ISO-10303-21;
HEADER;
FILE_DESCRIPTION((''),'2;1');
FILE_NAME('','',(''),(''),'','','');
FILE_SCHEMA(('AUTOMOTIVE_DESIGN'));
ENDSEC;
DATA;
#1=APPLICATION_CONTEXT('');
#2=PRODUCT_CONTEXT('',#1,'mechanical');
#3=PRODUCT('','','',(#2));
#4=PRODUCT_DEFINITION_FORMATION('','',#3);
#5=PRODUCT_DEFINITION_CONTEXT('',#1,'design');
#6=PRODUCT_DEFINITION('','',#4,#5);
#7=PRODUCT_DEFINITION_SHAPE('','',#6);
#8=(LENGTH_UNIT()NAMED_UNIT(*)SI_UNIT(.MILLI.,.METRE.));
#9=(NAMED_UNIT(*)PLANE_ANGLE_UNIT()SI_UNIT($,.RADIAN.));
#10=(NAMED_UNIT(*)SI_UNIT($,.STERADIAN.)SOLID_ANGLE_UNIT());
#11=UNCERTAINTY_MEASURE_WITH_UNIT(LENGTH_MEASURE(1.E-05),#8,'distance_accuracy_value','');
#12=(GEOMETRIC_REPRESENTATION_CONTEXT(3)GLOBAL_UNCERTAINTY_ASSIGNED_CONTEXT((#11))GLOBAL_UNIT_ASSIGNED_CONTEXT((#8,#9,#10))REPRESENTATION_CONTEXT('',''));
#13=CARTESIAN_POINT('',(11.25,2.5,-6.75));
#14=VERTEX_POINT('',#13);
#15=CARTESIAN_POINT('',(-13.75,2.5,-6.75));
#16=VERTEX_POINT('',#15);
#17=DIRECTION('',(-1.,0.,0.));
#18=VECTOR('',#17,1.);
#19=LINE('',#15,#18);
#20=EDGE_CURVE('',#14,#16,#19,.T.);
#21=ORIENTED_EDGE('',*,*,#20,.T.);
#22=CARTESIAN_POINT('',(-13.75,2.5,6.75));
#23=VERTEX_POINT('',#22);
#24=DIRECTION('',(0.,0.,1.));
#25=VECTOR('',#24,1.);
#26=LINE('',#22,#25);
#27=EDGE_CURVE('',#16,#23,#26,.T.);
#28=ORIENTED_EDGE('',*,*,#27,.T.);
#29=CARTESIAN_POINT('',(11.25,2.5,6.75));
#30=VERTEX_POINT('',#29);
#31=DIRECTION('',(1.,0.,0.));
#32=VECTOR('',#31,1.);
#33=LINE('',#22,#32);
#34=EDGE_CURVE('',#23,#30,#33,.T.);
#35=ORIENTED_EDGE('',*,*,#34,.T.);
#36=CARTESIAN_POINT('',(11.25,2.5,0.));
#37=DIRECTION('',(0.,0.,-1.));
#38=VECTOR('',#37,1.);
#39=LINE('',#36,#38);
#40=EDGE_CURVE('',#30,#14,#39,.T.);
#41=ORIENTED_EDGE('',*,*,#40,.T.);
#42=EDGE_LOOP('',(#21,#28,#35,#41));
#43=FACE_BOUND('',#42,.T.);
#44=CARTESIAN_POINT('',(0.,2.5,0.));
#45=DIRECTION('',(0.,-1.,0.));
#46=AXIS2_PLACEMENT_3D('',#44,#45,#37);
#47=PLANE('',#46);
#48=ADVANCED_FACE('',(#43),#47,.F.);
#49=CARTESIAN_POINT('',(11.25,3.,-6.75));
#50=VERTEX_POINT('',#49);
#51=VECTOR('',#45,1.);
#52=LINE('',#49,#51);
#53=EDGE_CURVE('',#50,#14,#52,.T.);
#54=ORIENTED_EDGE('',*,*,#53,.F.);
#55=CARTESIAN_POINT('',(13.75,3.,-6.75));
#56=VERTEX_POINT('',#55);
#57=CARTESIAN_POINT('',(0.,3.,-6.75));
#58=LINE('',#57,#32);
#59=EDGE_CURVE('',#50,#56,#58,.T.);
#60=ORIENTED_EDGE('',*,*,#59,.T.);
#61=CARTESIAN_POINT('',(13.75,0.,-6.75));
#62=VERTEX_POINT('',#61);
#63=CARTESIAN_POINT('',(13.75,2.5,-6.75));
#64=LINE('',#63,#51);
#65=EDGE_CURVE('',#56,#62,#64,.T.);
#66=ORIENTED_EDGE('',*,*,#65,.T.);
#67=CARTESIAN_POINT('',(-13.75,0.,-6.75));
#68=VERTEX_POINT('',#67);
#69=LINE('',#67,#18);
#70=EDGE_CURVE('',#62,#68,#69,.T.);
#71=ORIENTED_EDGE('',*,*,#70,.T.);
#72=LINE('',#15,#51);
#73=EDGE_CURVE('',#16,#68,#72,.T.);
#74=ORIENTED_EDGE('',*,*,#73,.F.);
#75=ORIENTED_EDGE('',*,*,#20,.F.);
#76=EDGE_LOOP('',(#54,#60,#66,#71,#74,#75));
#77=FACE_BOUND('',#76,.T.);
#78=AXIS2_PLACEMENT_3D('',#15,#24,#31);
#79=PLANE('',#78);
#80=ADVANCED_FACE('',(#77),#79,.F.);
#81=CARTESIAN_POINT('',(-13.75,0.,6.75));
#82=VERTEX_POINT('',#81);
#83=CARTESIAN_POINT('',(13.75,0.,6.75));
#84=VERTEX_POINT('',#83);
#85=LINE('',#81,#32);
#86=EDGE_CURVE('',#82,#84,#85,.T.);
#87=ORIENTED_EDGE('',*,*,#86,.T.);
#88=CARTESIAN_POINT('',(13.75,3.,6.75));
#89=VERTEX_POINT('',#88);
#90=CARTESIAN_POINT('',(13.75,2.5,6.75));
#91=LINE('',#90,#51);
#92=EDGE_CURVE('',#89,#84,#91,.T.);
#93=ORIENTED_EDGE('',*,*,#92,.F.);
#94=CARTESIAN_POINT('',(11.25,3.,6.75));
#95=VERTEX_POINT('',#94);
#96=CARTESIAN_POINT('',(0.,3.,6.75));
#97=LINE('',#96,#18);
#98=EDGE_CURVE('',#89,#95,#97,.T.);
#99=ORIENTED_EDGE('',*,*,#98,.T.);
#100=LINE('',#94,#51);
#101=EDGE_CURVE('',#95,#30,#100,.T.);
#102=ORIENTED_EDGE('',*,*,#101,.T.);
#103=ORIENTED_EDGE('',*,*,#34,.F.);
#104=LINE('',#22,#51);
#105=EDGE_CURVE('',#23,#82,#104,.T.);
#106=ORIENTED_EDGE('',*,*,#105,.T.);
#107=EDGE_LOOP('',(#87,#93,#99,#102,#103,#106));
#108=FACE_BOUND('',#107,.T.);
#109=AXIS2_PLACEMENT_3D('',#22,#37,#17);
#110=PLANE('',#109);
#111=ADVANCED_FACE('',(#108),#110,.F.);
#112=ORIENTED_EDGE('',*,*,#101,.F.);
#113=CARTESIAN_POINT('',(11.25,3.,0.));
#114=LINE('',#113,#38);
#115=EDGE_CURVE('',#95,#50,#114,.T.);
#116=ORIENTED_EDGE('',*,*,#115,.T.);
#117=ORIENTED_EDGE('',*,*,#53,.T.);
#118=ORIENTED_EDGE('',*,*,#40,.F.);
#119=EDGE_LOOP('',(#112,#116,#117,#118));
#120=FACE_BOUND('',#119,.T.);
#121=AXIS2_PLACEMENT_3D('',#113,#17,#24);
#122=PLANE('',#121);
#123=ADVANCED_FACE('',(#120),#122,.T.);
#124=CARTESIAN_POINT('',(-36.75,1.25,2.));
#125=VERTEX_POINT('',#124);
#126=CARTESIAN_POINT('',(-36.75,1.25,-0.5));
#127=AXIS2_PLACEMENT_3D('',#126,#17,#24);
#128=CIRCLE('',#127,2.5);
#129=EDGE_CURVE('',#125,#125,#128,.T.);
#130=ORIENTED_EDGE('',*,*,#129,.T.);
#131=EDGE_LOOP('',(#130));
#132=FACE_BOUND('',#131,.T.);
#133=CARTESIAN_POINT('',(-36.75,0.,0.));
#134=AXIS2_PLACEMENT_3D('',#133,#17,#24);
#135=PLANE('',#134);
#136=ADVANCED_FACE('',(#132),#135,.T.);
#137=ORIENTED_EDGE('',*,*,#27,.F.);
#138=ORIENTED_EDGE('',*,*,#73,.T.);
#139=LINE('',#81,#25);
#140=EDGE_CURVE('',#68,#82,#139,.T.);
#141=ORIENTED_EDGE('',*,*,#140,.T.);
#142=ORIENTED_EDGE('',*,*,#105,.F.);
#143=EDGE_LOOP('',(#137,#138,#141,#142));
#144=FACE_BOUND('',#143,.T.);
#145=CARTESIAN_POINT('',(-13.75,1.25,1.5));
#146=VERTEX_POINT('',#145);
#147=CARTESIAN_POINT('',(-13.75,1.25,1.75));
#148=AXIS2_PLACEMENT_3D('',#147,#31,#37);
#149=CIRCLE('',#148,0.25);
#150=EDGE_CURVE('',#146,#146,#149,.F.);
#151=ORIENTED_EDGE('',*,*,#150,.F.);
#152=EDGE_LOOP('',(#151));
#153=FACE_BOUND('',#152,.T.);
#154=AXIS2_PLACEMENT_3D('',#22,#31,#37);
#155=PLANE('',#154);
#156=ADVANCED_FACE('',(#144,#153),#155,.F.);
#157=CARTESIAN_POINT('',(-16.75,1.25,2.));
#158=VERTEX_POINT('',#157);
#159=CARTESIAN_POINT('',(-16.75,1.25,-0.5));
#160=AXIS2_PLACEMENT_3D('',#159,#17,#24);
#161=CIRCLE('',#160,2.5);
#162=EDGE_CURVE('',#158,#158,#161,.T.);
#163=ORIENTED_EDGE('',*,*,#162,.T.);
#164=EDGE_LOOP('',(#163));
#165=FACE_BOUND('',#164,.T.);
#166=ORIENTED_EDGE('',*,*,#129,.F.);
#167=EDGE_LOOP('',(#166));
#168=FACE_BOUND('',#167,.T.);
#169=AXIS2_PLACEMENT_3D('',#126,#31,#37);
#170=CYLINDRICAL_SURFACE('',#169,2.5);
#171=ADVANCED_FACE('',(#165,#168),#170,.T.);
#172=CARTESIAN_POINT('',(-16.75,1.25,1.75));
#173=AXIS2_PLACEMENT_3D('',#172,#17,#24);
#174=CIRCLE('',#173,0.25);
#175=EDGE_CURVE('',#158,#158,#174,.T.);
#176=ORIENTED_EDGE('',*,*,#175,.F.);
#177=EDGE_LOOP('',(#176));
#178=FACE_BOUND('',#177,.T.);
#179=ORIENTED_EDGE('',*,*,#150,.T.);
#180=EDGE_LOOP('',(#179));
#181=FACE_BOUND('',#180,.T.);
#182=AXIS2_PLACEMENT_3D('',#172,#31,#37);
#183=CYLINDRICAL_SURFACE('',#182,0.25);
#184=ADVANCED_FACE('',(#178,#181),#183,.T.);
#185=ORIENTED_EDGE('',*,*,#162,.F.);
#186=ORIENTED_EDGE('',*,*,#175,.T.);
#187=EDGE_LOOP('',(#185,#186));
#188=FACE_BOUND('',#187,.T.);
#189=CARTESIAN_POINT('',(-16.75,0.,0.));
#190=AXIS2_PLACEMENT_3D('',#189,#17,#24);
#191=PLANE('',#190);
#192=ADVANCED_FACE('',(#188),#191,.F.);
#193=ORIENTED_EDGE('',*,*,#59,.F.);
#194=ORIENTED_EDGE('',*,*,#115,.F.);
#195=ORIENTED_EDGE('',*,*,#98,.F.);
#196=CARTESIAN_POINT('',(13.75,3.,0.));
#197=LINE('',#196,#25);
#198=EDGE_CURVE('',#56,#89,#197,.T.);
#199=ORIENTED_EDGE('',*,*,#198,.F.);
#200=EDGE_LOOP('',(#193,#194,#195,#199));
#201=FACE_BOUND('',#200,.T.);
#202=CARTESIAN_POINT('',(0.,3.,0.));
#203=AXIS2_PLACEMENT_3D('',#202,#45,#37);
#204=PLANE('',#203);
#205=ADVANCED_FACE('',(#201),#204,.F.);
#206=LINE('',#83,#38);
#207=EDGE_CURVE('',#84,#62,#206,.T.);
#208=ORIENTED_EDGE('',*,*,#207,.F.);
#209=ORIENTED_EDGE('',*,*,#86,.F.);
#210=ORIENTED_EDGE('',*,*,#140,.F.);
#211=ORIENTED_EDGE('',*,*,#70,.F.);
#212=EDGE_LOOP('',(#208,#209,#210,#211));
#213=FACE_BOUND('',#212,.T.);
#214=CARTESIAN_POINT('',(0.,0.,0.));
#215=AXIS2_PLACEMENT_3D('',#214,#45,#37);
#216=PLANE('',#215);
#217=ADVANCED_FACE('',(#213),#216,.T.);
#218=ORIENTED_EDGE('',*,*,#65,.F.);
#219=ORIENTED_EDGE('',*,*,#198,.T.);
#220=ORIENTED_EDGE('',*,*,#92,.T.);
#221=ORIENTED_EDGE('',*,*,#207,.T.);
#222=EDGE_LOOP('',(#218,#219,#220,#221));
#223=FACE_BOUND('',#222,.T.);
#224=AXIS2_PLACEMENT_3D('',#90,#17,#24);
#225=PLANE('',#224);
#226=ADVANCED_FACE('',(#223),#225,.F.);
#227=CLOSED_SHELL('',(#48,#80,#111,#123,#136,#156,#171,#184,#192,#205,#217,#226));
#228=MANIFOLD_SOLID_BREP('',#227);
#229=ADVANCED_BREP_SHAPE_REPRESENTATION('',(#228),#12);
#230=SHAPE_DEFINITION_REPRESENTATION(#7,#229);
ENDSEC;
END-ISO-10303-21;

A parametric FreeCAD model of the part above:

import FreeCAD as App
import Part
import Sketcher
from FreeCAD import Vector

doc = App.newDocument("Part")
params = doc.addObject("Spreadsheet::Sheet", "Params")
for row, (alias, value) in enumerate([
    ("sketch1_width", "27.5 mm"),
    ("sketch1_height", "13.5 mm"),
    ("pad1_length", "2.5 mm"),
    ("sketch2_width", "2.5 mm"),
    ("sketch2_height", "13.5 mm"),
    ("pad2_length", "3 mm"),
    ("sketch3_diameter", "0.5 mm"),
    ("pad3_length", "3 mm"),
    ("sketch4_diameter", "5 mm"),
    ("pad4_length", "20 mm"),
], start=1):
    params.set(f"A{row}", alias)
    params.set(f"B{row}", "=" + value)
    params.setAlias(f"B{row}", alias)

body = doc.addObject("PartDesign::Body", "Body")

# Sketch on XZ plane
sketch1 = body.newObject("Sketcher::SketchObject", "Sketch")
sketch1.AttachmentSupport = (doc.getObject("XZ_Plane"), [""])
sketch1.MapMode = "FlatFace"
sketch1.addGeometry([
    Part.LineSegment(Vector(-13.75, -6.75, 0), Vector(-13.75, 6.75, 0)),
    Part.LineSegment(Vector(-13.75, 6.75, 0), Vector(13.75, 6.75, 0)),
    Part.LineSegment(Vector(13.75, 6.75, 0), Vector(13.75, -6.75, 0)),
    Part.LineSegment(Vector(13.75, -6.75, 0), Vector(-13.75, -6.75, 0)),
], False)
sketch1.addConstraint([
    Sketcher.Constraint("Coincident", 0, 2, 1, 1),
    Sketcher.Constraint("Coincident", 1, 2, 2, 1),
    Sketcher.Constraint("Coincident", 2, 2, 3, 1),
    Sketcher.Constraint("Coincident", 3, 2, 0, 1),
    Sketcher.Constraint("Vertical", 0),
    Sketcher.Constraint("Horizontal", 1),
    Sketcher.Constraint("Vertical", 2),
    Sketcher.Constraint("Horizontal", 3),
    Sketcher.Constraint("Symmetric", 0, 2, 2, 2, -1, 1),
    Sketcher.Constraint("DistanceX", 1, 1, 1, 2, 27.5),
    Sketcher.Constraint("DistanceY", 0, 1, 0, 2, 13.5),
])
sketch1.setExpression("Constraints[9]", "Params.sketch1_width")
sketch1.setExpression("Constraints[10]", "Params.sketch1_height")
pad1 = body.newObject("PartDesign::Pad", "Pad")
pad1.Profile = sketch1
pad1.setExpression("Length", "Params.pad1_length")
pad1.Reversed = True

# Sketch on XZ plane
sketch2 = body.newObject("Sketcher::SketchObject", "Sketch001")
sketch2.AttachmentSupport = (doc.getObject("XZ_Plane"), [""])
sketch2.MapMode = "FlatFace"
sketch2.addGeometry([
    Part.LineSegment(Vector(11.25, 6.75, 0), Vector(11.25, -6.75, 0)),
    Part.LineSegment(Vector(11.25, -6.75, 0), Vector(13.75, -6.75, 0)),
    Part.LineSegment(Vector(13.75, -6.75, 0), Vector(13.75, 6.75, 0)),
    Part.LineSegment(Vector(13.75, 6.75, 0), Vector(11.25, 6.75, 0)),
], False)
sketch2.addConstraint([
    Sketcher.Constraint("Coincident", 0, 2, 1, 1),
    Sketcher.Constraint("Coincident", 1, 2, 2, 1),
    Sketcher.Constraint("Coincident", 2, 2, 3, 1),
    Sketcher.Constraint("Coincident", 3, 2, 0, 1),
    Sketcher.Constraint("Vertical", 0),
    Sketcher.Constraint("Horizontal", 1),
    Sketcher.Constraint("Vertical", 2),
    Sketcher.Constraint("Horizontal", 3),
    Sketcher.Constraint("DistanceX", 1, 1, 1, 2, 2.5),
    Sketcher.Constraint("DistanceY", 0, 2, 0, 1, 13.5),
    Sketcher.Constraint("DistanceX", -1, 1, 0, 2, 11.25),
    Sketcher.Constraint("DistanceY", 0, 2, -1, 1, 6.75),
])
sketch2.setExpression("Constraints[8]", "Params.sketch2_width")
sketch2.setExpression("Constraints[9]", "Params.sketch2_height")
pad2 = body.newObject("PartDesign::Pad", "Pad001")
pad2.Profile = sketch2
pad2.setExpression("Length", "Params.pad2_length")
pad2.Reversed = True

# Sketch on YZ plane
sketch3 = body.newObject("Sketcher::SketchObject", "Sketch002")
sketch3.AttachmentSupport = (doc.getObject("YZ_Plane"), [""])
sketch3.MapMode = "FlatFace"
sketch3.AttachmentOffset = App.Placement(Vector(0, 0, -13.75), App.Rotation())
sketch3.addGeometry(Part.Circle(Vector(1.25, 1.75, 0), Vector(0, 0, 1), 0.25), False)
sketch3.addConstraint([
    Sketcher.Constraint("Diameter", 0, 0.5),
    Sketcher.Constraint("DistanceX", -1, 1, 0, 3, 1.25),
    Sketcher.Constraint("DistanceY", -1, 1, 0, 3, 1.75),
])
sketch3.setExpression("Constraints[0]", "Params.sketch3_diameter")
pad3 = body.newObject("PartDesign::Pad", "Pad002")
pad3.Profile = sketch3
pad3.setExpression("Length", "Params.pad3_length")
pad3.Reversed = True

# Sketch on YZ plane
sketch4 = body.newObject("Sketcher::SketchObject", "Sketch003")
sketch4.AttachmentSupport = (doc.getObject("YZ_Plane"), [""])
sketch4.MapMode = "FlatFace"
sketch4.AttachmentOffset = App.Placement(Vector(0, 0, -16.75), App.Rotation())
sketch4.addGeometry(Part.Circle(Vector(1.25, -0.5, 0), Vector(0, 0, 1), 2.5), False)
sketch4.addConstraint([
    Sketcher.Constraint("Diameter", 0, 5.0),
    Sketcher.Constraint("DistanceY", 0, 3, -1, 1, 0.5),
    Sketcher.Constraint("DistanceX", -1, 1, 0, 3, 1.25),
])
sketch4.setExpression("Constraints[0]", "Params.sketch4_diameter")
pad4 = body.newObject("PartDesign::Pad", "Pad003")
pad4.Profile = sketch4
pad4.setExpression("Length", "Params.pad4_length")
pad4.Reversed = True

doc.recompute()
